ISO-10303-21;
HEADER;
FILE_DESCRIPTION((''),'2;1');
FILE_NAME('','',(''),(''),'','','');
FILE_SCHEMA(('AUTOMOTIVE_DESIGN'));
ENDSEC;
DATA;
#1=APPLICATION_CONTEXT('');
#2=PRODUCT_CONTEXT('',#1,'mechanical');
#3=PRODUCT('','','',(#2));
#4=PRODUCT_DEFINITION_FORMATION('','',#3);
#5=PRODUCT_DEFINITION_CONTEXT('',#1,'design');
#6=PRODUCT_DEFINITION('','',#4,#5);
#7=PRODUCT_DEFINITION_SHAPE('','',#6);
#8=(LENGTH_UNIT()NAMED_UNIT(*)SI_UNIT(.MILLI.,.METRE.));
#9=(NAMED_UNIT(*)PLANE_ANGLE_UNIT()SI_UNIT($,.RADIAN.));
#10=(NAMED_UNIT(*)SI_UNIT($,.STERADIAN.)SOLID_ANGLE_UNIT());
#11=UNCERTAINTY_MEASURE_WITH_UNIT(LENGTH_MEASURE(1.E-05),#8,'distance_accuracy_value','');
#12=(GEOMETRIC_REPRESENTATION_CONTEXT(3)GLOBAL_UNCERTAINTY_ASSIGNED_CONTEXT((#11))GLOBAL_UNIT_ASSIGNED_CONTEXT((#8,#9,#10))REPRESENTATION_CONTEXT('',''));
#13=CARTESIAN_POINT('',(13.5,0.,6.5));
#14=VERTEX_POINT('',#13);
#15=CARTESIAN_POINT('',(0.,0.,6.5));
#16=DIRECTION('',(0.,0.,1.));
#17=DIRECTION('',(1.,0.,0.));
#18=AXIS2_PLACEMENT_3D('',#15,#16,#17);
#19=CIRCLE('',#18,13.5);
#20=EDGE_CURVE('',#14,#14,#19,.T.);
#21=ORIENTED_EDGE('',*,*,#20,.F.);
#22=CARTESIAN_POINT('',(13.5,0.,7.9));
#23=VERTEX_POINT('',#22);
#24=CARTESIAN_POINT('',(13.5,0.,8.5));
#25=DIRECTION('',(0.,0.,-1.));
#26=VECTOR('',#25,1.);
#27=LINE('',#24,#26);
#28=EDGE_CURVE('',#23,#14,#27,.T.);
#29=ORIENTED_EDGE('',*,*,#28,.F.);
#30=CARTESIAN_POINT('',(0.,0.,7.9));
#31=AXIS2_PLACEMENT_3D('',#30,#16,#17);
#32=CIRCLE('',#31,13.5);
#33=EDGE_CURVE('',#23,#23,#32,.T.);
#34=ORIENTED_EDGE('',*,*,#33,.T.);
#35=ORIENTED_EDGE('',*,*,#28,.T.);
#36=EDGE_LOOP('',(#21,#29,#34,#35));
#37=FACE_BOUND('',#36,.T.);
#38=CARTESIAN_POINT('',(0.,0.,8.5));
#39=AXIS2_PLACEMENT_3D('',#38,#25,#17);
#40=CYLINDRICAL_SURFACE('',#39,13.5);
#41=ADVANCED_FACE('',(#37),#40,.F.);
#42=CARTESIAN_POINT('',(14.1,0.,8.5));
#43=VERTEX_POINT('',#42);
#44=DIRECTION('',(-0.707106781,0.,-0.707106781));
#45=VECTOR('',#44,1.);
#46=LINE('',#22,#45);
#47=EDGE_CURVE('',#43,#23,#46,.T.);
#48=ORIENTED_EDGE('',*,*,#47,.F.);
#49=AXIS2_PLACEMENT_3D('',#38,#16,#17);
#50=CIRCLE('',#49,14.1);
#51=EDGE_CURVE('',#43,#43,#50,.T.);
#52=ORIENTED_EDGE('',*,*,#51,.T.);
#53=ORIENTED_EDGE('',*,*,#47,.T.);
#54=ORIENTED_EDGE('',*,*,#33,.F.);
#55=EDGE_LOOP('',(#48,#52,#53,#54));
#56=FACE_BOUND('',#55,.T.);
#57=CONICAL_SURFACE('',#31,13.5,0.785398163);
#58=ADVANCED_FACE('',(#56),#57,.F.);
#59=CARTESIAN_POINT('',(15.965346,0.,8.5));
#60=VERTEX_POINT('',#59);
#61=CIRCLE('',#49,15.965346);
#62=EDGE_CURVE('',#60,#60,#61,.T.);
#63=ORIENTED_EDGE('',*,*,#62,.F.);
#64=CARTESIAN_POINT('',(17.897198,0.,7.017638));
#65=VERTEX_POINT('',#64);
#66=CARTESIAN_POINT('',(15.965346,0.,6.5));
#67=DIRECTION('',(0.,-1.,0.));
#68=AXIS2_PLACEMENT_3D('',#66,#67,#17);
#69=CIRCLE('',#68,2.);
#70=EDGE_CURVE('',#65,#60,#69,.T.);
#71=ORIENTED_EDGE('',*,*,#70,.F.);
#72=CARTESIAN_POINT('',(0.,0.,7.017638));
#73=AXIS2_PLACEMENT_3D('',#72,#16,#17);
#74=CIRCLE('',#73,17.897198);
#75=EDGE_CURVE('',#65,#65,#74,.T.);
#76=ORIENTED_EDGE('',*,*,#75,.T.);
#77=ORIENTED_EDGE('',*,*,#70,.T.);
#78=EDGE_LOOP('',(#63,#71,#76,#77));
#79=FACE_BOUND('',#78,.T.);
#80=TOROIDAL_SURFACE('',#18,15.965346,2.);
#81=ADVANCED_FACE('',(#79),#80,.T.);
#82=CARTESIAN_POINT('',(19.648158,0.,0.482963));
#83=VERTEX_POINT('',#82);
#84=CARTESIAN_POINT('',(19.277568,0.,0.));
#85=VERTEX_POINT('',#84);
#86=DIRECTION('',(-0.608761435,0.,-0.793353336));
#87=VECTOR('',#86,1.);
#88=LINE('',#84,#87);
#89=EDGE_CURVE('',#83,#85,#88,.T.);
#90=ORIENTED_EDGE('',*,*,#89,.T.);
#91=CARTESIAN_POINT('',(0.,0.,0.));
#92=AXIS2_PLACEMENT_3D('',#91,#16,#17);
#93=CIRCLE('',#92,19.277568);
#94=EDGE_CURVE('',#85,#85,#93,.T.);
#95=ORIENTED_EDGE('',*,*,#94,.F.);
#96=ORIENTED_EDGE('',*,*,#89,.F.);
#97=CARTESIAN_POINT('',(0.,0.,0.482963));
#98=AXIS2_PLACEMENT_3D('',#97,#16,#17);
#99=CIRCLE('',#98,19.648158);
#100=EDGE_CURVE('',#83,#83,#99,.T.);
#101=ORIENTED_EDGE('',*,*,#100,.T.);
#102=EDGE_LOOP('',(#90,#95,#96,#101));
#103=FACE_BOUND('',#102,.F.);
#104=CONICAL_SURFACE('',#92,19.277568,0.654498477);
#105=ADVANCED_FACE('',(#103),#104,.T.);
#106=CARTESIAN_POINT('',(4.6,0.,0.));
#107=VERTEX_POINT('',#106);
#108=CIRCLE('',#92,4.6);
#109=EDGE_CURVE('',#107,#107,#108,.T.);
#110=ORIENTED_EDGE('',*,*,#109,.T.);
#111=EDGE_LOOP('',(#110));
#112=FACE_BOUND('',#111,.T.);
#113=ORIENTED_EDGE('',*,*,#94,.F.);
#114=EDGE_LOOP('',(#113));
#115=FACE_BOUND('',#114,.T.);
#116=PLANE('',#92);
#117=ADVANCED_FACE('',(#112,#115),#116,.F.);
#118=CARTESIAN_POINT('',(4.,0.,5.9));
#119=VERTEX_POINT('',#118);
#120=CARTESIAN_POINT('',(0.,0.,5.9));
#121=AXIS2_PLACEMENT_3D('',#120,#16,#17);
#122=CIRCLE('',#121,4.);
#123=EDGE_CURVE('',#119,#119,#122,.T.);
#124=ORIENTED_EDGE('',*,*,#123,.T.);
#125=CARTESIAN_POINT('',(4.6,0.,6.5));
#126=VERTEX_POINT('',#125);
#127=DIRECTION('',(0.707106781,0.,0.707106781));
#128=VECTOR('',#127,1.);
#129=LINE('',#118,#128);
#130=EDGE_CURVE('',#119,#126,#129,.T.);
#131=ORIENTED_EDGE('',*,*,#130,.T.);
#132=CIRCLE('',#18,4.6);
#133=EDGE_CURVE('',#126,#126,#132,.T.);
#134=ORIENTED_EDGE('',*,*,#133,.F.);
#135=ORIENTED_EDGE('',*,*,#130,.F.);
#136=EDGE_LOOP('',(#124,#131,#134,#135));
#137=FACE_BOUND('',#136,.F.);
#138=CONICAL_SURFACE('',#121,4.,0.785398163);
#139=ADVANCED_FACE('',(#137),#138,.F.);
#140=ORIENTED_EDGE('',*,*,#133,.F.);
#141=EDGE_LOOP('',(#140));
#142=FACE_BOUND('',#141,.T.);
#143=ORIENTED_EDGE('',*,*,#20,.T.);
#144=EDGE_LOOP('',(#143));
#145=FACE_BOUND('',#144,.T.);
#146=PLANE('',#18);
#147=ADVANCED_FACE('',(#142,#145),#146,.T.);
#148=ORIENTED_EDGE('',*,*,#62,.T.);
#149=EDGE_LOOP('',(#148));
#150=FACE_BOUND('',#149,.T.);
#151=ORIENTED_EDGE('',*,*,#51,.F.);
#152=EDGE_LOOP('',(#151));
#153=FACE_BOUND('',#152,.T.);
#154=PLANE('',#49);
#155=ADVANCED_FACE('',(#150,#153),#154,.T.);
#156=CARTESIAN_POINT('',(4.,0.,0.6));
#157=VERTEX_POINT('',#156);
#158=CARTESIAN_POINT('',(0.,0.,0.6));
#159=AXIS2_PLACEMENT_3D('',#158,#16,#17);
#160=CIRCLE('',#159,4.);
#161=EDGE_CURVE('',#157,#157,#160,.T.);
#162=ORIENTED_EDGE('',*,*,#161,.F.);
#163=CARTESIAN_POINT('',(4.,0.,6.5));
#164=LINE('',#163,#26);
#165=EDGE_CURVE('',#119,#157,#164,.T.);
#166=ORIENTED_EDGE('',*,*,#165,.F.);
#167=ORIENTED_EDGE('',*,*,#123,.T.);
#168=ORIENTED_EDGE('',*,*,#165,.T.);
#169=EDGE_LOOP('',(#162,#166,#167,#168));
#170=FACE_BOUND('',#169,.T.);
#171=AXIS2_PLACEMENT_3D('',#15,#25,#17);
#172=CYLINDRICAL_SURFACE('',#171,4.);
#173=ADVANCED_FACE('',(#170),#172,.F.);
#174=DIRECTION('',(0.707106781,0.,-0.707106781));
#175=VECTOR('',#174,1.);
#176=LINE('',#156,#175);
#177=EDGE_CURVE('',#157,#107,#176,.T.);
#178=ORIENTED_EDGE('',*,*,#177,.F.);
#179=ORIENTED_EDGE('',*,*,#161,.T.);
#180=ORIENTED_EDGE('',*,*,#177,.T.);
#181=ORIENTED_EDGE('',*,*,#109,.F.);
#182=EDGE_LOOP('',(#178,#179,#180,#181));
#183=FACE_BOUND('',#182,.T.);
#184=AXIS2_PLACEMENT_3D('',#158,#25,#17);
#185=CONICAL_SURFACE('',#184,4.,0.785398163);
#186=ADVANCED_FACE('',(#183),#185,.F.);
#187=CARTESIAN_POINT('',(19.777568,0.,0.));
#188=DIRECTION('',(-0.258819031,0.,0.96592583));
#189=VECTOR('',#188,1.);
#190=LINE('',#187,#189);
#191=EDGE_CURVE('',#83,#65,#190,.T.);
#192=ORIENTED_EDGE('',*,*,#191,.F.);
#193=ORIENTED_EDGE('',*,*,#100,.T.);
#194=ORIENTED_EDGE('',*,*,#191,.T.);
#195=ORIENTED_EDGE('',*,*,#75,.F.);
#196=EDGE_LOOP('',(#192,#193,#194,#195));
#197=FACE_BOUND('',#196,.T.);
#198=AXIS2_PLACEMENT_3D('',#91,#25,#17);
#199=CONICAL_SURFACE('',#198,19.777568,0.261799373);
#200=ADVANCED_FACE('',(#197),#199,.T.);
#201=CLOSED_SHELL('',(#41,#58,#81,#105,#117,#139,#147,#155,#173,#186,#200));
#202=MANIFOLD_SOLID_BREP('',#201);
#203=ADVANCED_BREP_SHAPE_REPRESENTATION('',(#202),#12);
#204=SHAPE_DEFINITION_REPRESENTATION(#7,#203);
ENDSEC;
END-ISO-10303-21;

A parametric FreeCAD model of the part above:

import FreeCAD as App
import Part
import Sketcher
from FreeCAD import Vector
Q = App.Units.Quantity


def edges_at(feature, points):
    """Names of the edges that pass closest to the given points."""
    edges = feature.Shape.Edges
    near = lambda p: min(range(len(edges)), key=lambda i: edges[i].distToShape(Part.Vertex(*p))[0])
    return sorted({f"Edge{near(p) + 1}" for p in points})

doc = App.newDocument("Part")
params = doc.addObject("Spreadsheet::Sheet", "Params")
for row, (alias, value) in enumerate([
    ("sketch1_width", "4 mm"),
    ("sketch1_height", "2 mm"),
    ("sketch1_width2", "9.5 mm"),
    ("sketch1_height2", "6.5 mm"),
    ("revolution_angle", "360 deg"),
    ("chamfer_size", "0.6 mm"),
    ("fillet_radius", "2 mm"),
    ("chamfer2_size", "0.5 mm"),
], start=1):
    params.set(f"A{row}", alias)
    params.set(f"B{row}", "=" + value)
    params.setAlias(f"B{row}", alias)

body = doc.addObject("PartDesign::Body", "Body")

sketch1 = body.newObject("Sketcher::SketchObject", "Sketch")
sketch1.AttachmentSupport = (doc.getObject("XZ_Plane"), [""])
sketch1.MapMode = "FlatFace"
sketch1.addGeometry([
    Part.LineSegment(Vector(4, 6.5, 0), Vector(4, 0, 0)),
    Part.LineSegment(Vector(4, 0, 0), Vector(19.8, 0, 0)),
    Part.LineSegment(Vector(19.8, 0, 0), Vector(17.5, 8.5, 0)),
    Part.LineSegment(Vector(17.5, 8.5, 0), Vector(13.5, 8.5, 0)),
    Part.LineSegment(Vector(13.5, 8.5, 0), Vector(13.5, 6.5, 0)),
    Part.LineSegment(Vector(13.5, 6.5, 0), Vector(4, 6.5, 0)),
], False)
sketch1.addConstraint([
    Sketcher.Constraint("Coincident", 0, 2, 1, 1),
    Sketcher.Constraint("Coincident", 1, 2, 2, 1),
    Sketcher.Constraint("Coincident", 2, 2, 3, 1),
    Sketcher.Constraint("Coincident", 3, 2, 4, 1),
    Sketcher.Constraint("Coincident", 4, 2, 5, 1),
    Sketcher.Constraint("Coincident", 5, 2, 0, 1),
    Sketcher.Constraint("Vertical", 0),
    Sketcher.Constraint("Horizontal", 1),
    Sketcher.Constraint("Horizontal", 3),
    Sketcher.Constraint("Vertical", 4),
    Sketcher.Constraint("Horizontal", 5),
    Sketcher.Constraint("PointOnObject", 0, 2, -1),
    Sketcher.Constraint("DistanceX", 3, 2, 3, 1, 4.0),
    Sketcher.Constraint("DistanceY", 4, 2, 4, 1, 2.0),
    Sketcher.Constraint("Angle", 2, Q("104.999999 deg")),
    Sketcher.Constraint("DistanceX", 5, 2, 5, 1, 9.5),
    Sketcher.Constraint("DistanceY", 0, 2, 0, 1, 6.5),
    Sketcher.Constraint("DistanceX", -1, 1, 0, 2, 4.0),
])
sketch1.setExpression("Constraints[12]", "Params.sketch1_width")
sketch1.setExpression("Constraints[13]", "Params.sketch1_height")
sketch1.setExpression("Constraints[15]", "Params.sketch1_width2")
sketch1.setExpression("Constraints[16]", "Params.sketch1_height2")
revolution = body.newObject("PartDesign::Revolution", "Revolution")
revolution.Profile = sketch1
revolution.ReferenceAxis = (sketch1, ["V_Axis"])
revolution.setExpression("Angle", "Params.revolution_angle")
doc.recompute()

chamfer = body.newObject("PartDesign::Chamfer", "Chamfer")
chamfer.Base = (revolution, edges_at(revolution, [(-13.5, 0, 8.5), (-4, 0, 6.5), (-4, 0, 0)]))
chamfer.setExpression("Size", "Params.chamfer_size")
doc.recompute()

fillet = body.newObject("PartDesign::Fillet", "Fillet")
fillet.Base = (chamfer, edges_at(chamfer, [(-17.5, 0, 8.5)]))
fillet.setExpression("Radius", "Params.fillet_radius")
doc.recompute()

chamfer2 = body.newObject("PartDesign::Chamfer", "Chamfer001")
chamfer2.Base = (fillet, edges_at(fillet, [(-19.778, 0, 0)]))
chamfer2.setExpression("Size", "Params.chamfer2_size")

doc.recompute()
